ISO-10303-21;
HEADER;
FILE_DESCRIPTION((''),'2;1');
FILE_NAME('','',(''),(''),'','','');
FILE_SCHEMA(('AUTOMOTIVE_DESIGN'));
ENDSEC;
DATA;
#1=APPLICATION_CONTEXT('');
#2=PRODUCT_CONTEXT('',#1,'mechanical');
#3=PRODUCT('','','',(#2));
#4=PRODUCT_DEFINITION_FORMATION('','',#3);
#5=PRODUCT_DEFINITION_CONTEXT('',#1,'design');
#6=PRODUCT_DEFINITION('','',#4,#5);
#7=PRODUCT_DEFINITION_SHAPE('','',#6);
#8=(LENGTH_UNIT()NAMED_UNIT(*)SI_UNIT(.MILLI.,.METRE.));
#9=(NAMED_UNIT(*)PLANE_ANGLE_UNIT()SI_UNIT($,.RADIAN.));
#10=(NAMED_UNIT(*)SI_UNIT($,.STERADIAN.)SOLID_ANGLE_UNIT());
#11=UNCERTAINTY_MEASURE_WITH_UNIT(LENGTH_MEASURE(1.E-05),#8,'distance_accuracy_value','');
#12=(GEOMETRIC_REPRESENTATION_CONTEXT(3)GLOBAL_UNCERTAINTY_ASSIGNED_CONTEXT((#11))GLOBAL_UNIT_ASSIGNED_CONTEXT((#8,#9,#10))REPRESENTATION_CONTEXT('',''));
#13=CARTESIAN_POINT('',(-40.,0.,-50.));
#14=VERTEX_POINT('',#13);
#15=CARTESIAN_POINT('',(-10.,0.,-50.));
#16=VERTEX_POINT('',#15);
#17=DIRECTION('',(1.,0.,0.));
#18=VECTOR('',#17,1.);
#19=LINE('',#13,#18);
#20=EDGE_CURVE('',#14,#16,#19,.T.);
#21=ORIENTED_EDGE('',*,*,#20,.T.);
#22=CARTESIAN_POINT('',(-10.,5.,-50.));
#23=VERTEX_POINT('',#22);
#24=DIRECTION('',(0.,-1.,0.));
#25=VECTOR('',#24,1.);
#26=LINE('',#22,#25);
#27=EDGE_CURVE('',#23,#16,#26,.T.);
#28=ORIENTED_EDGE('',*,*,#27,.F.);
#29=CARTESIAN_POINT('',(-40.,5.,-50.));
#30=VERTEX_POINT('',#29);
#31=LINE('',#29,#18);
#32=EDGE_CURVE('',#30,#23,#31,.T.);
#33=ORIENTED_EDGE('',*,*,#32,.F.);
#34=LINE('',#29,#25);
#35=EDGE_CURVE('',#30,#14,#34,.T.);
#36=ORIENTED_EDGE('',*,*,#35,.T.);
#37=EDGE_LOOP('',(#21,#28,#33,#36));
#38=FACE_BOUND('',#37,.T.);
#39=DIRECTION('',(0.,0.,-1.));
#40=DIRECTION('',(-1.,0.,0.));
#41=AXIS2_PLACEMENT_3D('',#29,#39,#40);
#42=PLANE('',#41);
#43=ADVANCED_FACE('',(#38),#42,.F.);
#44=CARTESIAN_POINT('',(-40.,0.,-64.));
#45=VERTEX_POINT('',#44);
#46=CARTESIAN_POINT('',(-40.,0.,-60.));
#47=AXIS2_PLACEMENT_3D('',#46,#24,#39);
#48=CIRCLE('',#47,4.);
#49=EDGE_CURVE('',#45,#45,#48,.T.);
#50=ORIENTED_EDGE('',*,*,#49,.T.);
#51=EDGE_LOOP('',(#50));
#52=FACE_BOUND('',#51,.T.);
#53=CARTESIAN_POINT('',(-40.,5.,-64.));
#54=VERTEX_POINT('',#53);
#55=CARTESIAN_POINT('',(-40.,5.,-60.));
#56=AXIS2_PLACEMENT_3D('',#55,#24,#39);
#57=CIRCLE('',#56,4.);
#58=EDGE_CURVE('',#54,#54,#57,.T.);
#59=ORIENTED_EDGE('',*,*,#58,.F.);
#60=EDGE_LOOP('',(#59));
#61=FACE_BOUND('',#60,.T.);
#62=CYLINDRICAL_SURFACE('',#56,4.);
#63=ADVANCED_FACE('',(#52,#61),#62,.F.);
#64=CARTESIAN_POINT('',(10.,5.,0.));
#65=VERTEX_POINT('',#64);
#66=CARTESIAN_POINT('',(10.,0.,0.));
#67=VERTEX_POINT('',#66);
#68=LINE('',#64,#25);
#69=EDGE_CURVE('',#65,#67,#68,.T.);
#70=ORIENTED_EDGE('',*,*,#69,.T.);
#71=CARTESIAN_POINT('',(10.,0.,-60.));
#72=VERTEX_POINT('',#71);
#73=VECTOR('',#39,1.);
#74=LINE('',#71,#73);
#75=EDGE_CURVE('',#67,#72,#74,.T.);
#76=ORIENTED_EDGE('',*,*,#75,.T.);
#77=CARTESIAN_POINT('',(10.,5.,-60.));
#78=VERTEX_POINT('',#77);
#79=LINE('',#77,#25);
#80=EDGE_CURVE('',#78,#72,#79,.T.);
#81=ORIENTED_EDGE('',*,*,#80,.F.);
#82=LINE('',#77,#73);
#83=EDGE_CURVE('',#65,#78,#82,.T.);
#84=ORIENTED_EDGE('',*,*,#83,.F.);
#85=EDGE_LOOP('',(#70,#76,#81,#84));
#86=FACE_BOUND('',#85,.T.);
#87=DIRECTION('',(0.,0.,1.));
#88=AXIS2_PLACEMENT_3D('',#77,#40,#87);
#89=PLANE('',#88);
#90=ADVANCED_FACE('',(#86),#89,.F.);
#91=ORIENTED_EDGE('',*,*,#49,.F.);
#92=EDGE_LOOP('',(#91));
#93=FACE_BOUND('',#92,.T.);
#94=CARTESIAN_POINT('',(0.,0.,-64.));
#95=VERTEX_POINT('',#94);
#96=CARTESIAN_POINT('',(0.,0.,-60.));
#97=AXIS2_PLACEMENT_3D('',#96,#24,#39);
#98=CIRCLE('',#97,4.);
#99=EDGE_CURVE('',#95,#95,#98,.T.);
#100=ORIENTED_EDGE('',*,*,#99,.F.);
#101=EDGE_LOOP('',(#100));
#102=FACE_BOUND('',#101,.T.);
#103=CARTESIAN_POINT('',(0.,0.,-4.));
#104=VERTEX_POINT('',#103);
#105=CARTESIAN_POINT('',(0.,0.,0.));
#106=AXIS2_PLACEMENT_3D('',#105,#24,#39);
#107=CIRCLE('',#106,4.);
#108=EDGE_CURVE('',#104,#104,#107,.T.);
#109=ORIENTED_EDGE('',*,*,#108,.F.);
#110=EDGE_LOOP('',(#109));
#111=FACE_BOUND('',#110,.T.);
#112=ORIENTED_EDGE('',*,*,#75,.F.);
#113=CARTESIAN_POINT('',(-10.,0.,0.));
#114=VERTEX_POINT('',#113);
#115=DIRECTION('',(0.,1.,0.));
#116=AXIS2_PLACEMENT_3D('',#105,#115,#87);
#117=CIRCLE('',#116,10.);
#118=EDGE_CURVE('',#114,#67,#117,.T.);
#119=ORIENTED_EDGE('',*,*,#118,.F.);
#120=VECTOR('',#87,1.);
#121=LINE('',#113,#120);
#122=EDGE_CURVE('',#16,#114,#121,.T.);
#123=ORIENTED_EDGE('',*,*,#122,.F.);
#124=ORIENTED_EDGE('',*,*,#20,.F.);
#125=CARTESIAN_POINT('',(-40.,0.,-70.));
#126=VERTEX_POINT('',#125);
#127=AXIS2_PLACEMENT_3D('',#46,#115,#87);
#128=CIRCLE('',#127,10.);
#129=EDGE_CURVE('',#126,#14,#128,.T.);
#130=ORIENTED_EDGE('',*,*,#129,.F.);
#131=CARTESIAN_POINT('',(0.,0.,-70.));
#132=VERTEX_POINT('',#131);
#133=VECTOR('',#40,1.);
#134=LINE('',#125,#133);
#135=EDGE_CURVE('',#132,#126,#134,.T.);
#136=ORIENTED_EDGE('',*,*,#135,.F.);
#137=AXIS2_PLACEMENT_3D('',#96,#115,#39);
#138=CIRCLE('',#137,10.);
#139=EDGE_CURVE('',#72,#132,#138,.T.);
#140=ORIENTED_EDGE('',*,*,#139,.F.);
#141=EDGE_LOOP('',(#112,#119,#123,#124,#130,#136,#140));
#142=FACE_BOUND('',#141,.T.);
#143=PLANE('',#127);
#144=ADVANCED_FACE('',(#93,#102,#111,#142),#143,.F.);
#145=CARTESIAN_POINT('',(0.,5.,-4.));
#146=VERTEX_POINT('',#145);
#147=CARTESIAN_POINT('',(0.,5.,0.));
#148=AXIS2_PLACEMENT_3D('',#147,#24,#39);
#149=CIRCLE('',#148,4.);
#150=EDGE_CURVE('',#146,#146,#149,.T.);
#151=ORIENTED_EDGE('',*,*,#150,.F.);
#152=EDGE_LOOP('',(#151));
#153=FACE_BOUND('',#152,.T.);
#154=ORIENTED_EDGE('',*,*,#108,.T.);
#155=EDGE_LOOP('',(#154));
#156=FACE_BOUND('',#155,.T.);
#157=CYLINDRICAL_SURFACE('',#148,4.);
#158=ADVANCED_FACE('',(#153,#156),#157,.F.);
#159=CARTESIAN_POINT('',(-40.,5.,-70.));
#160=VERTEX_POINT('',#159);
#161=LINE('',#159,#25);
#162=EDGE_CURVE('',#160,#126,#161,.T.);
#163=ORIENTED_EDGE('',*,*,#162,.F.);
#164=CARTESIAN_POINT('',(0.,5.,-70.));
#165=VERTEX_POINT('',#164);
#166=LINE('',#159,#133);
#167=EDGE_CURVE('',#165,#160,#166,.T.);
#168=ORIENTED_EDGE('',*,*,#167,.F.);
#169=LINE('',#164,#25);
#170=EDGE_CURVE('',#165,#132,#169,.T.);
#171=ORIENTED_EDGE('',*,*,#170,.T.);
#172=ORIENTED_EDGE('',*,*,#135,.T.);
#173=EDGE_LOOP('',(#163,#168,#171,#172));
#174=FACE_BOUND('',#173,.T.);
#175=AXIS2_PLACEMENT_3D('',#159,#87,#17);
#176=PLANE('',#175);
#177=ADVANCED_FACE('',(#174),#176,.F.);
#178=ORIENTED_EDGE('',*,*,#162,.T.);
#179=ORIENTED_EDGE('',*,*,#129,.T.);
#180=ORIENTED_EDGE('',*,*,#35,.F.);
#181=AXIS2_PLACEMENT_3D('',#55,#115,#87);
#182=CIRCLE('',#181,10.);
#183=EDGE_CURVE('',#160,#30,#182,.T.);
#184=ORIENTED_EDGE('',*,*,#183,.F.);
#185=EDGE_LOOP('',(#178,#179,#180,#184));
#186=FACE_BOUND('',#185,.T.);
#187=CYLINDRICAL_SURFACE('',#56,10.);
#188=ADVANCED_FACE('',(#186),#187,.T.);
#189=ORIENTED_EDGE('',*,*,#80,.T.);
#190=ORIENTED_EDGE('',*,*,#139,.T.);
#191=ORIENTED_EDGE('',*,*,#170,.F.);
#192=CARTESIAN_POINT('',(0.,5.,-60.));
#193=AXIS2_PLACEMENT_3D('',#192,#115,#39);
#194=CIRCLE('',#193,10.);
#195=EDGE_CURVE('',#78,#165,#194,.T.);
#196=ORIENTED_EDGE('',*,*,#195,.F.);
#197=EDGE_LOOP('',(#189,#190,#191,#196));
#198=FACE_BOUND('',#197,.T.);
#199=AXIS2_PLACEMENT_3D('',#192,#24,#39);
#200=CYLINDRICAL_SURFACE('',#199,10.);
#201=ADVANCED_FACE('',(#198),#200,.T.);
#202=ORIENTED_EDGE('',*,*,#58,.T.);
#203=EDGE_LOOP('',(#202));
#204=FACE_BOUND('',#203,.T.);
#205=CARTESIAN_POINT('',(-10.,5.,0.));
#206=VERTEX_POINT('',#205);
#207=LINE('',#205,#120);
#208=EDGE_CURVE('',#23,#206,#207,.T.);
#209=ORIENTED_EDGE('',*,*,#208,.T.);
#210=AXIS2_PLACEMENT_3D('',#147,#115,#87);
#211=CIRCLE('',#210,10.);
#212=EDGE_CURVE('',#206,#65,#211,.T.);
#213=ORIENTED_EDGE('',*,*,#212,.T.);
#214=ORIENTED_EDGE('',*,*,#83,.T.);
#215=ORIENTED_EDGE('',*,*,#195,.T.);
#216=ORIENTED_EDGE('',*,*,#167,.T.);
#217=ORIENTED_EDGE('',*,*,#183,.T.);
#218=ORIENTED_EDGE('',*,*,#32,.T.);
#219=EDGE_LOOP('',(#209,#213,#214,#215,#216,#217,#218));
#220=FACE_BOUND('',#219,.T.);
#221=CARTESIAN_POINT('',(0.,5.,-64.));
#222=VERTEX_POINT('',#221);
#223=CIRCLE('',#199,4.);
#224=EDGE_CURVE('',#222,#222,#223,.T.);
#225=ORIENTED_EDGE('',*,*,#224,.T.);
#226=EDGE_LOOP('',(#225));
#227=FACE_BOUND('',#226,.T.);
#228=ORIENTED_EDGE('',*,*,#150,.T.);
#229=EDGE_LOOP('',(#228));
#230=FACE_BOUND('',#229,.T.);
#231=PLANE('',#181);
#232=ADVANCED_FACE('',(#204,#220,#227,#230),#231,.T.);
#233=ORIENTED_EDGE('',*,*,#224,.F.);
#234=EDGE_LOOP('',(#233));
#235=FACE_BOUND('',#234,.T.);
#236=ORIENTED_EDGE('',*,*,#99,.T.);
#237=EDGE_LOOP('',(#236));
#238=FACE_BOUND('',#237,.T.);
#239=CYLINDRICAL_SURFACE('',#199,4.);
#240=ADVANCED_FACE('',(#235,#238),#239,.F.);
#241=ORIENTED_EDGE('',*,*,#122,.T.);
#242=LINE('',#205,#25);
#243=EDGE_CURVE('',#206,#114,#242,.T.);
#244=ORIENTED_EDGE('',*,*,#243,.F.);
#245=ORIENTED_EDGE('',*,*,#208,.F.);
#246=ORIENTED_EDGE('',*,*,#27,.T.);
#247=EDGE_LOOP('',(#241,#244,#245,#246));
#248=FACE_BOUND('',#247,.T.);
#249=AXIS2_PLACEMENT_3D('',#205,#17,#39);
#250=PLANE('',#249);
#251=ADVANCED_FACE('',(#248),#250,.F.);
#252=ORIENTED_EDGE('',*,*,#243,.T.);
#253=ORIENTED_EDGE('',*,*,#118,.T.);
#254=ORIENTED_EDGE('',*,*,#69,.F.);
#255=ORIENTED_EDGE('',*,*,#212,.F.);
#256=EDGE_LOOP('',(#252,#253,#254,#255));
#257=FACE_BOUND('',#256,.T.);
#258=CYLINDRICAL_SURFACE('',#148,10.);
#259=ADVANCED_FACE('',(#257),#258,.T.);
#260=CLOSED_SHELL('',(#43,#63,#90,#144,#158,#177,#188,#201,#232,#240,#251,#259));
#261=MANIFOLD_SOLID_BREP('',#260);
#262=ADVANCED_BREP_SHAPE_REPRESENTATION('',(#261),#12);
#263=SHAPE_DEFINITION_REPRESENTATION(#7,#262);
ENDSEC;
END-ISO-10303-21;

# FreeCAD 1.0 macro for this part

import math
import FreeCAD as App
import Part
import Sketcher
from FreeCAD import Vector
Q = App.Units.Quantity

doc = App.newDocument("Part")
body = doc.addObject("PartDesign::Body", "Body")

# Sketch on XZ plane
sketch1 = body.newObject("Sketcher::SketchObject", "Sketch")
sketch1.AttachmentSupport = (doc.getObject("XZ_Plane"), [""])
sketch1.MapMode = "FlatFace"
sketch1.addGeometry(Part.LineSegment(Vector(0, -70, 0), Vector(-40, -70, 0)), False)
sketch1.addGeometry(Part.ArcOfCircle(Part.Circle(Vector(-40, -60, 0), Vector(0, 0, 1), 10), math.radians(90), math.radians(270)), False)
sketch1.addGeometry(Part.LineSegment(Vector(-40, -50, 0), Vector(-10, -50, 0)), False)
sketch1.addGeometry(Part.LineSegment(Vector(-10, -50, 0), Vector(-10, 0, 0)), False)
sketch1.addGeometry(Part.ArcOfCircle(Part.Circle(Vector(0, 0, 0), Vector(0, 0, 1), 10), math.radians(0), math.radians(180)), False)
sketch1.addGeometry(Part.LineSegment(Vector(10, 0, 0), Vector(10, -60, 0)), False)
sketch1.addGeometry(Part.ArcOfCircle(Part.Circle(Vector(0, -60, 0), Vector(0, 0, 1), 10), math.radians(-90), math.radians(0)), False)
sketch1.addConstraint(Sketcher.Constraint("Tangent", 0, 2, 1, 2))
sketch1.addConstraint(Sketcher.Constraint("Tangent", 1, 1, 2, 1))
sketch1.addConstraint(Sketcher.Constraint("Coincident", 2, 2, 3, 1))
sketch1.addConstraint(Sketcher.Constraint("Tangent", 3, 2, 4, 2))
sketch1.addConstraint(Sketcher.Constraint("Tangent", 4, 1, 5, 1))
sketch1.addConstraint(Sketcher.Constraint("Tangent", 5, 2, 6, 2))
sketch1.addConstraint(Sketcher.Constraint("Tangent", 6, 1, 0, 1))
sketch1.addConstraint(Sketcher.Constraint("Horizontal", 0))
sketch1.addConstraint(Sketcher.Constraint("Horizontal", 2))
sketch1.addConstraint(Sketcher.Constraint("Vertical", 3))
sketch1.addConstraint(Sketcher.Constraint("Vertical", 5))
sketch1.addConstraint(Sketcher.Constraint("Coincident", 4, 3, -1, 1))
sketch1.addConstraint(Sketcher.Constraint("Equal", 1, 4))
sketch1.addConstraint(Sketcher.Constraint("Equal", 4, 6))
sketch1.addConstraint(Sketcher.Constraint("Radius", 1, Q("10 mm")))
sketch1.addConstraint(Sketcher.Constraint("DistanceX", 0, 2, 0, 1, Q("40 mm")))
sketch1.addConstraint(Sketcher.Constraint("DistanceY", 3, 1, 3, 2, Q("50 mm")))
pad1 = body.newObject("PartDesign::Pad", "Pad")
pad1.Profile = sketch1
pad1.Length = 5
pad1.Reversed = True

# Sketch on XZ plane
sketch2 = body.newObject("Sketcher::SketchObject", "Sketch001")
sketch2.AttachmentSupport = (doc.getObject("XZ_Plane"), [""])
sketch2.MapMode = "FlatFace"
sketch2.addGeometry(Part.Circle(Vector(0, 0, 0), Vector(0, 0, 1), 4), False)
sketch2.addGeometry(Part.Circle(Vector(-40, -60, 0), Vector(0, 0, 1), 4), False)
sketch2.addGeometry(Part.Circle(Vector(0, -60, 0), Vector(0, 0, 1), 4), False)
sketch2.addConstraint(Sketcher.Constraint("Coincident", 0, 3, -1, 1))
sketch2.addConstraint(Sketcher.Constraint("Equal", 0, 1))
sketch2.addConstraint(Sketcher.Constraint("Equal", 1, 2))
sketch2.addConstraint(Sketcher.Constraint("PointOnObject", 2, 3, -2))
sketch2.addConstraint(Sketcher.Constraint("Horizontal", 1, 3, 2, 3))
sketch2.addConstraint(Sketcher.Constraint("Diameter", 0, Q("8 mm")))
sketch2.addConstraint(Sketcher.Constraint("DistanceX", 1, 3, -1, 1, Q("40 mm")))
sketch2.addConstraint(Sketcher.Constraint("DistanceY", 1, 3, -1, 1, Q("60 mm")))
pocket1 = body.newObject("PartDesign::Pocket", "Pocket")
pocket1.Profile = sketch2
pocket1.Length = 5

doc.recompute()
